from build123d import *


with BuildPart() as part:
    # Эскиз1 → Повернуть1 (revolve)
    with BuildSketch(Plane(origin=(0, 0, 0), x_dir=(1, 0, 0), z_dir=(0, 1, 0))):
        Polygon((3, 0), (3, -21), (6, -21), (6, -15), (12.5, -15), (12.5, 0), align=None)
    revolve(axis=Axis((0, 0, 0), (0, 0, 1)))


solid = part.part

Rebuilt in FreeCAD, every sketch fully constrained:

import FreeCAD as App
import Part
import Sketcher

V = App.Vector


def add_polygon(sketch, points):
    """Adds a closed chain of lines whose ends are joined by coincident constraints."""
    first, n = sketch.GeometryCount, len(points)
    for a, b in zip(points, points[1:] + points[:1]):
        sketch.addGeometry(Part.LineSegment(App.Vector(*a, 0), App.Vector(*b, 0)), False)
    for i in range(n):
        sketch.addConstraint(Sketcher.Constraint("Coincident", first + i, 2, first + (i + 1) % n, 1))

doc = App.newDocument("Part")
body = doc.addObject("PartDesign::Body", "Body")

# Sketch on XZ plane
sketch1 = body.newObject("Sketcher::SketchObject", "Sketch")
sketch1.AttachmentSupport = (doc.getObject("XZ_Plane"), [""])
sketch1.MapMode = "FlatFace"
add_polygon(sketch1, [(3, 0), (3, 21), (6, 21), (6, 15), (12.5, 15), (12.5, 0)])  # lines 0-5
sketch1.addConstraint([
    Sketcher.Constraint("Vertical", 0),
    Sketcher.Constraint("Horizontal", 1),
    Sketcher.Constraint("Vertical", 2),
    Sketcher.Constraint("Horizontal", 3),
    Sketcher.Constraint("Vertical", 4),
    Sketcher.Constraint("Horizontal", 5),
    Sketcher.Constraint("PointOnObject", 4, 2, -1),
    Sketcher.Constraint("DistanceX", 1, 1, 1, 2, 3.0),
    Sketcher.Constraint("DistanceY", 0, 1, 0, 2, 21.0),
    Sketcher.Constraint("DistanceY", 2, 2, 2, 1, 6.0),
    Sketcher.Constraint("DistanceX", 3, 1, 3, 2, 6.5),
    Sketcher.Constraint("DistanceX", -1, 1, 0, 2, 3.0),
])
revolution = body.newObject("PartDesign::Revolution", "Revolution")
revolution.Profile = sketch1
revolution.ReferenceAxis = (sketch1, ["V_Axis"])
revolution.Angle = 360

doc.recompute()
